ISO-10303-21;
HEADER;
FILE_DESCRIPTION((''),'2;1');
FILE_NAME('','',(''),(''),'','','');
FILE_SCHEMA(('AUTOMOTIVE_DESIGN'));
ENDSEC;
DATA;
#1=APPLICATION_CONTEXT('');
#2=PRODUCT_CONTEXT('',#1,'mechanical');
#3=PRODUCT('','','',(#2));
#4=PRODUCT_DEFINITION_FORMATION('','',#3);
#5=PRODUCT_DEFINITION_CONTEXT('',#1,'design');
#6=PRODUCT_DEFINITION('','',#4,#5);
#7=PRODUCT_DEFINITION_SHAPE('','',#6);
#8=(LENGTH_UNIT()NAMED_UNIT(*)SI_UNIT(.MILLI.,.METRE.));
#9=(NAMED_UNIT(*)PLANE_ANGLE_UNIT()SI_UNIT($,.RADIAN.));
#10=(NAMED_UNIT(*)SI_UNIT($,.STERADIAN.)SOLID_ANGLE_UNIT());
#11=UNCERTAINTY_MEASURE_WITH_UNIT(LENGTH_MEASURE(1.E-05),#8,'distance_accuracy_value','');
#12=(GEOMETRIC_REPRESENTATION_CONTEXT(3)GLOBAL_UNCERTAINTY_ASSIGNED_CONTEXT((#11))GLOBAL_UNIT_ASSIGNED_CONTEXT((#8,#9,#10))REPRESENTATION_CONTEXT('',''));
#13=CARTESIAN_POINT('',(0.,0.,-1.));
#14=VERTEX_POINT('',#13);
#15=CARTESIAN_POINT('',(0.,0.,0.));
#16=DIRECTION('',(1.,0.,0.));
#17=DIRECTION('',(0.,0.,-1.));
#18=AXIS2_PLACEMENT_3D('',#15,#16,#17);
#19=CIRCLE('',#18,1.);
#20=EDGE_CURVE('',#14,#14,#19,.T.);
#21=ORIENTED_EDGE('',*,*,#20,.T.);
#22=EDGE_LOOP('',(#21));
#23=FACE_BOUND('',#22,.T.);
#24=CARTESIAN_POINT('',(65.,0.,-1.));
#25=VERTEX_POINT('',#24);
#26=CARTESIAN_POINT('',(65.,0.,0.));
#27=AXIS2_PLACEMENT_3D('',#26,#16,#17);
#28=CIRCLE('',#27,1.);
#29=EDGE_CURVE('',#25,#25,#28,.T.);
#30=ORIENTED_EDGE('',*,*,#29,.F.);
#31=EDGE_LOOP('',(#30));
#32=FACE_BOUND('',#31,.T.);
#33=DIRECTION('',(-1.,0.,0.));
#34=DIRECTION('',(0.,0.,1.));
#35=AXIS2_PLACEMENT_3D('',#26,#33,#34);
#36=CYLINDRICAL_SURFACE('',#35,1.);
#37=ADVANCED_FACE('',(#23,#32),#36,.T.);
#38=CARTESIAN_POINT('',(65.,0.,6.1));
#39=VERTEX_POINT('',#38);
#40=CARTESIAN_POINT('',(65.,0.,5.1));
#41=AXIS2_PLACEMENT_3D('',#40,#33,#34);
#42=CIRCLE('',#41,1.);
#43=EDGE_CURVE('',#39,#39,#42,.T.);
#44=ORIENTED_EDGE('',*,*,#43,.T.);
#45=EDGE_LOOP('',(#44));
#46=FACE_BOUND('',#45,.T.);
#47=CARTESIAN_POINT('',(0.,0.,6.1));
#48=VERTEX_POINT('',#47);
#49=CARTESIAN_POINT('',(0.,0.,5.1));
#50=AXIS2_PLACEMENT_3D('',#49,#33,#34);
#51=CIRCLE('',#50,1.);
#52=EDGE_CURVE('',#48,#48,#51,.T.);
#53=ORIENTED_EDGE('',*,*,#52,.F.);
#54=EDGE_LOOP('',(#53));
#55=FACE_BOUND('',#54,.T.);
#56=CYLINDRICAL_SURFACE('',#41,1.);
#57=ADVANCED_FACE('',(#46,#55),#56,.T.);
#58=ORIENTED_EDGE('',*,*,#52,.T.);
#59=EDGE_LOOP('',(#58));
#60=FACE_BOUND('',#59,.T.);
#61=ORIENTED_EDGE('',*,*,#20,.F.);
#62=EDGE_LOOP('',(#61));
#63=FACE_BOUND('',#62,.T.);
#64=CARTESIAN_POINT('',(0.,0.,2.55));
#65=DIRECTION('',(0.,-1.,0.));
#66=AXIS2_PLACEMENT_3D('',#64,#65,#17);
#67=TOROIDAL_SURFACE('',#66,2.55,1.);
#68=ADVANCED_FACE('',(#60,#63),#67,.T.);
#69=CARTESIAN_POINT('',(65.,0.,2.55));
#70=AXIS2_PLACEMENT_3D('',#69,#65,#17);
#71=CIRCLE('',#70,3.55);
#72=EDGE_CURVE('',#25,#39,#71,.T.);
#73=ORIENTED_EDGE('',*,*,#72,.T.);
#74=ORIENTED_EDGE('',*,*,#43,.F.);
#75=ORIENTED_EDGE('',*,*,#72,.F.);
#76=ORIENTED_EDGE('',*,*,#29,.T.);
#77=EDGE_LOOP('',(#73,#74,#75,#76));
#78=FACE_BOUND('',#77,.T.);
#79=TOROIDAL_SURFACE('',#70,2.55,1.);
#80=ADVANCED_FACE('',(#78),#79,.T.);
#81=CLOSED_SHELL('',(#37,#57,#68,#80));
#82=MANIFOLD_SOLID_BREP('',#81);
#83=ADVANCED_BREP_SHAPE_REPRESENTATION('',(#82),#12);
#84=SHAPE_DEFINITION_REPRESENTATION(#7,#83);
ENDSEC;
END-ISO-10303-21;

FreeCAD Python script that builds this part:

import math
import FreeCAD as App
import Part
import Sketcher

V = App.Vector
Q = App.Units.Quantity

doc = App.newDocument("Part")
body = doc.addObject("PartDesign::Body", "Body")

sketch1 = body.newObject("Sketcher::SketchObject", "Sketch")
sketch1.AttachmentSupport = (doc.getObject("YZ_Plane"), [""])
sketch1.MapMode = "FlatFace"
sketch1.addGeometry(Part.Circle(V(0, 0, 0), V(0, 0, 1), 1), False)
sketch1.addConstraint(Sketcher.Constraint("Coincident", 0, 3, -1, 1))
sketch1.addConstraint(Sketcher.Constraint("Diameter", 0, Q("2 mm")))

sketch2 = body.newObject("Sketcher::SketchObject", "Sketch001")
sketch2.AttachmentSupport = (doc.getObject("XZ_Plane"), [""])
sketch2.MapMode = "FlatFace"
sketch2.addGeometry(Part.LineSegment(V(0, 0, 0), V(65, 0, 0)), False)
sketch2.addGeometry(Part.ArcOfCircle(Part.Circle(V(65, 2.5, 0), V(0, 0, 1), 2.5), math.radians(-90), math.radians(90)), False)
sketch2.addGeometry(Part.LineSegment(V(65, 5.1, 0), V(0, 5.1, 0)), False)
sketch2.addGeometry(Part.ArcOfCircle(Part.Circle(V(0, 2.5, 0), V(0, 0, 1), 2.5), math.radians(90), math.radians(270)), False)
sketch2.addConstraint(Sketcher.Constraint("Tangent", 0, 2, 1, 1))
sketch2.addConstraint(Sketcher.Constraint("Tangent", 1, 2, 2, 1))
sketch2.addConstraint(Sketcher.Constraint("Tangent", 2, 2, 3, 1))
sketch2.addConstraint(Sketcher.Constraint("Tangent", 3, 2, 0, 1))
sketch2.addConstraint(Sketcher.Constraint("Horizontal", 0))
sketch2.addConstraint(Sketcher.Constraint("Horizontal", 2))
sketch2.addConstraint(Sketcher.Constraint("Coincident", 3, 2, -1, 1))
sketch2.addConstraint(Sketcher.Constraint("DistanceX", 0, 1, 0, 2, Q("65 mm")))
sketch2.addConstraint(Sketcher.Constraint("Radius", 1, Q("2.55 mm")))
doc.recompute()

additivepipe = body.newObject("PartDesign::AdditivePipe", "AdditivePipe")
additivepipe.Profile = sketch1
additivepipe.Spine = (sketch2, ["Edge1", "Edge2", "Edge3", "Edge4"])

doc.recompute()
